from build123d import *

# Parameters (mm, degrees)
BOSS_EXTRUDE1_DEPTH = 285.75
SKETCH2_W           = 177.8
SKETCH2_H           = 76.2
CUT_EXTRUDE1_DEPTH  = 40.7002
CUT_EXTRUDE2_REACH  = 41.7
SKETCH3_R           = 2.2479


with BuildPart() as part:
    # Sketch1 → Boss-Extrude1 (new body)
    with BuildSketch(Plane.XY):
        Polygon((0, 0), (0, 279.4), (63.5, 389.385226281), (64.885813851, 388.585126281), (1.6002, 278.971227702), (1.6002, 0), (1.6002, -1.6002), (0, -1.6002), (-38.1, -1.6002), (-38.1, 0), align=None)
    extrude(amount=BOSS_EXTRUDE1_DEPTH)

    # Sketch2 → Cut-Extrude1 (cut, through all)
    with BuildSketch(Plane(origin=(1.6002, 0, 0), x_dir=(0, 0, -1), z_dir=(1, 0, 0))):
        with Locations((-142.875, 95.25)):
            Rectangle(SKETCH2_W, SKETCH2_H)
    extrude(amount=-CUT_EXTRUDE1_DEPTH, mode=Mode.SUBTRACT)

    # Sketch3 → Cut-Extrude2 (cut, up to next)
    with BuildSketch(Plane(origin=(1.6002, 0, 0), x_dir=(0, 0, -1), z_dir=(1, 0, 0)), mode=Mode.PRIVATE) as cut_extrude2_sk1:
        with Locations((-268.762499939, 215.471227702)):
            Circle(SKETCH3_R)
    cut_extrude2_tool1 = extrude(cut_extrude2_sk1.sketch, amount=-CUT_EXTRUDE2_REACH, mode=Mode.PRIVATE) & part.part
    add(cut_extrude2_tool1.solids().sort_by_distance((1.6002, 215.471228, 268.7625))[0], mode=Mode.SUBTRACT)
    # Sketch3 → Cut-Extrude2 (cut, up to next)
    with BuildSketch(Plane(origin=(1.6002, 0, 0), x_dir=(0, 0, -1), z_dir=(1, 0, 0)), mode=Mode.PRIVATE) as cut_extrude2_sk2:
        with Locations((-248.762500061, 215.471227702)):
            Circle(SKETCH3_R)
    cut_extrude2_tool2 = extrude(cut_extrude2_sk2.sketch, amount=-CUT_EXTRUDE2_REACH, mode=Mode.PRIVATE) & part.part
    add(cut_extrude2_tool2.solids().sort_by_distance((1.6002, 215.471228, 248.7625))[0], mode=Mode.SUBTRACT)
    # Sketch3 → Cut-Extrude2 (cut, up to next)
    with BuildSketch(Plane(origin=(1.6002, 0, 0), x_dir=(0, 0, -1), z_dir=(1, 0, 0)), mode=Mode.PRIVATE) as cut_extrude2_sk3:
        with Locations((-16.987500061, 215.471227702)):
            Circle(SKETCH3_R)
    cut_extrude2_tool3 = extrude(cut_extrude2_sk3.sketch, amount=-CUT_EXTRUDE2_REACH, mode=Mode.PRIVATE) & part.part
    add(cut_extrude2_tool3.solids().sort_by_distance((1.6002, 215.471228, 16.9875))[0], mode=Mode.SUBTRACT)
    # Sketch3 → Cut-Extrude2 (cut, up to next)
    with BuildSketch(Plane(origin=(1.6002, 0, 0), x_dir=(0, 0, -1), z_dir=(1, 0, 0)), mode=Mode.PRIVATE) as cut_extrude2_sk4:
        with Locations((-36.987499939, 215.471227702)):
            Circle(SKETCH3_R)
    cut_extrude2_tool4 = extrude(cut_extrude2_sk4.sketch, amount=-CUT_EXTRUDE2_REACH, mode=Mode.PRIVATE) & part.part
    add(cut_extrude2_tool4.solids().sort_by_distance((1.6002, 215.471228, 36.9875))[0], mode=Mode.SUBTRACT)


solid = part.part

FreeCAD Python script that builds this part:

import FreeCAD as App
import Part
import Sketcher

V = App.Vector
Q = App.Units.Quantity

doc = App.newDocument("Part")
body = doc.addObject("PartDesign::Body", "Body")

# Sketch on XY plane
sketch1 = doc.addObject("Sketcher::SketchObject", "Sketch")
body.addObject(sketch1)
sketch1.AttachmentSupport = (doc.XY_Plane, [""])
sketch1.MapMode = "FlatFace"
sketch1.addGeometry([
    Part.LineSegment(V(0, 279.4, 0), V(0, 0, 0)),  # 0
    Part.LineSegment(V(0, 0, 0), V(-38.1, 0, 0)),  # 1
    Part.LineSegment(V(-38.1, 0, 0), V(-38.1, -1.6, 0)),  # 2
    Part.LineSegment(V(-38.1, -1.6, 0), V(1.6, -1.6, 0)),  # 3
    Part.LineSegment(V(1.6, -1.6, 0), V(1.6, 279, 0)),  # 4
    Part.LineSegment(V(1.6, 279, 0), V(64.9, 388.6, 0)),  # 5
    Part.LineSegment(V(64.9, 388.6, 0), V(63.5, 389.4, 0)),  # 6
    Part.LineSegment(V(63.5, 389.4, 0), V(0, 279.4, 0)),  # 7
], False)
sketch1.addConstraint([
    Sketcher.Constraint("Coincident", 0, 2, 1, 1),
    Sketcher.Constraint("Coincident", 1, 2, 2, 1),
    Sketcher.Constraint("Coincident", 2, 2, 3, 1),
    Sketcher.Constraint("Coincident", 3, 2, 4, 1),
    Sketcher.Constraint("Coincident", 4, 2, 5, 1),
    Sketcher.Constraint("Coincident", 5, 2, 6, 1),
    Sketcher.Constraint("Coincident", 6, 2, 7, 1),
    Sketcher.Constraint("Coincident", 7, 2, 0, 1),
    Sketcher.Constraint("Vertical", 0),
    Sketcher.Constraint("Horizontal", 1),
    Sketcher.Constraint("Vertical", 2),
    Sketcher.Constraint("Horizontal", 3),
    Sketcher.Constraint("Vertical", 4),
    Sketcher.Constraint("Coincident", 0, 2, -1, 1),
    Sketcher.Constraint("Perpendicular", 5, 6),
    Sketcher.Constraint("Perpendicular", 6, 7),
    Sketcher.Constraint("DistanceY", 0, 2, 0, 1, Q("11 in")),
    Sketcher.Constraint("Distance", 7, Q("5 in")),
    Sketcher.Constraint("DistanceX", 1, 2, 1, 1, Q("1.5 in")),
    Sketcher.Constraint("Angle", 5, Q("60 deg")),
    Sketcher.Constraint("DistanceX", 3, 1, 3, 2, Q("1.563 in")),
    Sketcher.Constraint("DistanceY", 2, 2, 2, 1, Q("0.063 in")),
    Sketcher.Constraint("Distance", 6, Q("0.063 in")),
])
pad1 = doc.addObject("PartDesign::Pad", "Pad")
body.addObject(pad1)
pad1.Profile = sketch1
pad1.Length = Q("11.25 in")

# Sketch on YZ plane
sketch2 = doc.addObject("Sketcher::SketchObject", "Sketch001")
body.addObject(sketch2)
sketch2.AttachmentSupport = (doc.YZ_Plane, [""])
sketch2.MapMode = "FlatFace"
sketch2.AttachmentOffset = App.Placement(V(0, 0, 0.063 * 25.4), App.Rotation())
sketch2.addGeometry([
    Part.LineSegment(V(133, 232, 0), V(57, 232, 0)),
    Part.LineSegment(V(57, 232, 0), V(57, 54, 0)),
    Part.LineSegment(V(57, 54, 0), V(133, 54, 0)),
    Part.LineSegment(V(133, 54, 0), V(133, 232, 0)),
], False)
sketch2.addConstraint([
    Sketcher.Constraint("Coincident", 0, 2, 1, 1),
    Sketcher.Constraint("Coincident", 1, 2, 2, 1),
    Sketcher.Constraint("Coincident", 2, 2, 3, 1),
    Sketcher.Constraint("Coincident", 3, 2, 0, 1),
    Sketcher.Constraint("Horizontal", 0),
    Sketcher.Constraint("Vertical", 1),
    Sketcher.Constraint("Horizontal", 2),
    Sketcher.Constraint("Vertical", 3),
    Sketcher.Constraint("DistanceX", 0, 2, 0, 1, Q("3 in")),
    Sketcher.Constraint("DistanceY", 1, 2, 1, 1, Q("7 in")),
    Sketcher.Constraint("DistanceX", -1, 1, 0, 2, Q("2.25 in")),
    Sketcher.Constraint("DistanceY", -1, 1, 0, 2, Q("9.125 in")),
])
pocket1 = doc.addObject("PartDesign::Pocket", "Pocket")
body.addObject(pocket1)
pocket1.Profile = sketch2
pocket1.Type = "ThroughAll"

# Sketch on YZ plane
sketch3 = doc.addObject("Sketcher::SketchObject", "Sketch002")
body.addObject(sketch3)
sketch3.AttachmentSupport = (doc.YZ_Plane, [""])
sketch3.MapMode = "FlatFace"
sketch3.AttachmentOffset = App.Placement(V(0, 0, 0.063 * 25.4), App.Rotation())
sketch3.addGeometry(Part.Circle(V(215.5, 268.8, 0), V(0, 0, 1), 2.2), False)
sketch3.addConstraint([
    Sketcher.Constraint("Diameter", 0, Q("0.177 in")),
    Sketcher.Constraint("DistanceY", -1, 1, 0, 3, Q("268.7625 mm")),
    Sketcher.Constraint("DistanceX", -1, 1, 0, 3, Q("215.471228 mm")),
])
pocket2 = doc.addObject("PartDesign::Pocket", "Pocket001")
body.addObject(pocket2)
pocket2.Profile = sketch3
pocket2.Type = "UpToFirst"

# Sketch on YZ plane
sketch4 = doc.addObject("Sketcher::SketchObject", "Sketch003")
body.addObject(sketch4)
sketch4.AttachmentSupport = (doc.YZ_Plane, [""])
sketch4.MapMode = "FlatFace"
sketch4.AttachmentOffset = App.Placement(V(0, 0, 0.063 * 25.4), App.Rotation())
sketch4.addGeometry(Part.Circle(V(215.5, 248.8, 0), V(0, 0, 1), 2.2), False)
sketch4.addConstraint([
    Sketcher.Constraint("Diameter", 0, Q("0.177 in")),
    Sketcher.Constraint("DistanceY", -1, 1, 0, 3, Q("248.7625 mm")),
    Sketcher.Constraint("DistanceX", -1, 1, 0, 3, Q("215.471228 mm")),
])
pocket3 = doc.addObject("PartDesign::Pocket", "Pocket002")
body.addObject(pocket3)
pocket3.Profile = sketch4
pocket3.Type = "UpToFirst"

# Sketch on YZ plane
sketch5 = doc.addObject("Sketcher::SketchObject", "Sketch004")
body.addObject(sketch5)
sketch5.AttachmentSupport = (doc.YZ_Plane, [""])
sketch5.MapMode = "FlatFace"
sketch5.AttachmentOffset = App.Placement(V(0, 0, 0.063 * 25.4), App.Rotation())
sketch5.addGeometry(Part.Circle(V(215.5, 17, 0), V(0, 0, 1), 2.2), False)
sketch5.addConstraint([
    Sketcher.Constraint("Diameter", 0, Q("0.177 in")),
    Sketcher.Constraint("DistanceY", -1, 1, 0, 3, Q("16.9875 mm")),
    Sketcher.Constraint("DistanceX", -1, 1, 0, 3, Q("215.471228 mm")),
])
pocket4 = doc.addObject("PartDesign::Pocket", "Pocket003")
body.addObject(pocket4)
pocket4.Profile = sketch5
pocket4.Type = "UpToFirst"

# Sketch on YZ plane
sketch6 = doc.addObject("Sketcher::SketchObject", "Sketch005")
body.addObject(sketch6)
sketch6.AttachmentSupport = (doc.YZ_Plane, [""])
sketch6.MapMode = "FlatFace"
sketch6.AttachmentOffset = App.Placement(V(0, 0, 0.063 * 25.4), App.Rotation())
sketch6.addGeometry(Part.Circle(V(215.5, 37, 0), V(0, 0, 1), 2.2), False)
sketch6.addConstraint([
    Sketcher.Constraint("Diameter", 0, Q("0.177 in")),
    Sketcher.Constraint("DistanceY", -1, 1, 0, 3, Q("36.9875 mm")),
    Sketcher.Constraint("DistanceX", -1, 1, 0, 3, Q("215.471228 mm")),
])
pocket5 = doc.addObject("PartDesign::Pocket", "Pocket004")
body.addObject(pocket5)
pocket5.Profile = sketch6
pocket5.Type = "UpToFirst"

doc.recompute()
